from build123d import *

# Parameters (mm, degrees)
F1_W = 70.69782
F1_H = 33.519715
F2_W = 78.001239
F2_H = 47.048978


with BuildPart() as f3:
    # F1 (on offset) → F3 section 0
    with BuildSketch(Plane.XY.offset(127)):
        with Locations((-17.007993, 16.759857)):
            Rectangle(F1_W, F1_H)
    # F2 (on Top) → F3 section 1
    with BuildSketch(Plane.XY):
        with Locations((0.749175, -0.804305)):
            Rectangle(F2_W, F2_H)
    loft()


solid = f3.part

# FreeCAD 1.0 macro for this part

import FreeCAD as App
import Part
import Sketcher


def add_polygon(sketch, points):
    """Adds a closed chain of lines whose ends are joined by coincident constraints."""
    first, n = sketch.GeometryCount, len(points)
    for a, b in zip(points, points[1:] + points[:1]):
        sketch.addGeometry(Part.LineSegment(App.Vector(*a, 0), App.Vector(*b, 0)), False)
    for i in range(n):
        sketch.addConstraint(Sketcher.Constraint("Coincident", first + i, 2, first + (i + 1) % n, 1))

doc = App.newDocument("Part")
body = doc.addObject("PartDesign::Body", "Body")

# Sketch on XY plane
sketch1 = body.newObject("Sketcher::SketchObject", "Sketch")
sketch1.AttachmentSupport = (doc.getObject("XY_Plane"), [""])
sketch1.MapMode = "FlatFace"
sketch1.AttachmentOffset = App.Placement(App.Vector(0, 0, 127), App.Rotation())
add_polygon(sketch1, [(-52.356903, 33.519714), (-52.356903, 0), (18.340917, 0), (18.340917, 33.519714)])  # lines 0-3
sketch1.addConstraint([
    Sketcher.Constraint("Vertical", 0),
    Sketcher.Constraint("Horizontal", 1),
    Sketcher.Constraint("Vertical", 2),
    Sketcher.Constraint("Horizontal", 3),
    Sketcher.Constraint("PointOnObject", 0, 2, -1),
    Sketcher.Constraint("DistanceX", 1, 1, 1, 2, 70.69782),
    Sketcher.Constraint("DistanceY", 0, 2, 0, 1, 33.519715),
    Sketcher.Constraint("DistanceX", 0, 2, -1, 1, 52.356903),
])

# Sketch on XY plane
sketch2 = body.newObject("Sketcher::SketchObject", "Sketch001")
sketch2.AttachmentSupport = (doc.getObject("XY_Plane"), [""])
sketch2.MapMode = "FlatFace"
add_polygon(sketch2, [(-38.251444, 22.720184), (-38.251444, -24.328794), (39.749795, -24.328794), (39.749795, 22.720184)])  # lines 0-3
sketch2.addConstraint([
    Sketcher.Constraint("Vertical", 0),
    Sketcher.Constraint("Horizontal", 1),
    Sketcher.Constraint("Vertical", 2),
    Sketcher.Constraint("Horizontal", 3),
    Sketcher.Constraint("DistanceX", 1, 1, 1, 2, 78.001239),
    Sketcher.Constraint("DistanceY", 0, 2, 0, 1, 47.048978),
    Sketcher.Constraint("DistanceX", 0, 2, -1, 1, 38.251444),
    Sketcher.Constraint("DistanceY", 0, 2, -1, 1, 24.328794),
])

additiveloft = body.newObject("PartDesign::AdditiveLoft", "AdditiveLoft")
additiveloft.Profile = sketch1
additiveloft.Sections = [sketch2]

doc.recompute()
